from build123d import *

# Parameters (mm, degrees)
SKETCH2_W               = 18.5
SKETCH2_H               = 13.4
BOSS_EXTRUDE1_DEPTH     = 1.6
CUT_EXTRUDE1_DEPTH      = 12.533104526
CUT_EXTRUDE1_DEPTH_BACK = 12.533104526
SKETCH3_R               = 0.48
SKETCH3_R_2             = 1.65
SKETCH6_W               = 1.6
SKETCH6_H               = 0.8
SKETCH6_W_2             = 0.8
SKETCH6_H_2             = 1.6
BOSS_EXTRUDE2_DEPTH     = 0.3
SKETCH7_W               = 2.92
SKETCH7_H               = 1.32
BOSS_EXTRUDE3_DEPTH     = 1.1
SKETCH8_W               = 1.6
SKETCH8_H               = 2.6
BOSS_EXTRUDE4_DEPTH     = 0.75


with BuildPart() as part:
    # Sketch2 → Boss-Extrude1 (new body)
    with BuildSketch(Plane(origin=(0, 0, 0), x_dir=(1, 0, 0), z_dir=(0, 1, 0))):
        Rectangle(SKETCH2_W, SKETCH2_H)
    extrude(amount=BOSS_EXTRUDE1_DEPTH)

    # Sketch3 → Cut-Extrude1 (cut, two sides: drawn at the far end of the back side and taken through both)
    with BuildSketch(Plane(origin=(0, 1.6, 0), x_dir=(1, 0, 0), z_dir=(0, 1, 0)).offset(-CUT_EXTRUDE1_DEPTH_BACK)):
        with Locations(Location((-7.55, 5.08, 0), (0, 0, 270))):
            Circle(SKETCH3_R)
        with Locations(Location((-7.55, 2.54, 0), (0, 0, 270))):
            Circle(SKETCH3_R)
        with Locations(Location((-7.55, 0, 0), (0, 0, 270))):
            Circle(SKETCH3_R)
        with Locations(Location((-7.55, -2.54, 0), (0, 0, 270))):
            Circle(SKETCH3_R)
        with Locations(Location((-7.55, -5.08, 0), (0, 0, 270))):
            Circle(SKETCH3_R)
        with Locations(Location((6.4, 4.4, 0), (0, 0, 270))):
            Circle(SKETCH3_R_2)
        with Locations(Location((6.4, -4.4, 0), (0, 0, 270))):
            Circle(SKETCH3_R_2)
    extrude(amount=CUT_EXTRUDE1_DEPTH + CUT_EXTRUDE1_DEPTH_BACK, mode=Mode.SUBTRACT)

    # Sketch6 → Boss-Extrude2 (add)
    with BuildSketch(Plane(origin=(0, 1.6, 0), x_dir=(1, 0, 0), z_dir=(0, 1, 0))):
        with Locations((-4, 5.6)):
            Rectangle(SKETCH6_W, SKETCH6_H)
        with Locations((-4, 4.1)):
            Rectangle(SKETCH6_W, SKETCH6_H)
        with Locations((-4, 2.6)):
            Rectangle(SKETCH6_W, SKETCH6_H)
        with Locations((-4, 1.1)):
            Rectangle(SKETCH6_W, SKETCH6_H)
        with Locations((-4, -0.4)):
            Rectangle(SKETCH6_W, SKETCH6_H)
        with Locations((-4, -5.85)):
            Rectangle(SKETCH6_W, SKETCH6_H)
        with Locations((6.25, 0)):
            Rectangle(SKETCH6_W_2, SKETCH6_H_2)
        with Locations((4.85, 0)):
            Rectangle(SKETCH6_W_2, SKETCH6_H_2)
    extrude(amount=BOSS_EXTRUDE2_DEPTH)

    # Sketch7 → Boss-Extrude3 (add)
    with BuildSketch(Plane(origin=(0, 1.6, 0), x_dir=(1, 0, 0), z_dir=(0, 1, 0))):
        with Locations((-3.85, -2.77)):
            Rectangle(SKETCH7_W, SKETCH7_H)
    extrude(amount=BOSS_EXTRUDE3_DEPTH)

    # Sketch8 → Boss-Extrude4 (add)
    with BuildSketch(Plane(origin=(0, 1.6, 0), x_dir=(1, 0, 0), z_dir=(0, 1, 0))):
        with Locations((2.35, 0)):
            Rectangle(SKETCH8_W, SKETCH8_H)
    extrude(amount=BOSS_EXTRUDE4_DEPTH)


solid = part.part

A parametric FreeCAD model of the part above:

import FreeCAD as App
import Part
import Sketcher

V = App.Vector
Q = App.Units.Quantity

doc = App.newDocument("Part")
body = doc.addObject("PartDesign::Body", "Body")

sketch1 = body.newObject("Sketcher::SketchObject", "Sketch")
sketch1.AttachmentSupport = (doc.getObject("XZ_Plane"), [""])
sketch1.MapMode = "FlatFace"
sketch1.addGeometry([
    Part.LineSegment(V(-9.25, -6.7, 0), V(-9.25, 6.7, 0)),
    Part.LineSegment(V(-9.25, 6.7, 0), V(9.25, 6.7, 0)),
    Part.LineSegment(V(9.25, 6.7, 0), V(9.25, -6.7, 0)),
    Part.LineSegment(V(9.25, -6.7, 0), V(-9.25, -6.7, 0)),
], False)
sketch1.addConstraint([
    Sketcher.Constraint("Coincident", 0, 2, 1, 1),
    Sketcher.Constraint("Coincident", 1, 2, 2, 1),
    Sketcher.Constraint("Coincident", 2, 2, 3, 1),
    Sketcher.Constraint("Coincident", 3, 2, 0, 1),
    Sketcher.Constraint("Vertical", 0),
    Sketcher.Constraint("Horizontal", 1),
    Sketcher.Constraint("Vertical", 2),
    Sketcher.Constraint("Horizontal", 3),
    Sketcher.Constraint("Symmetric", 0, 2, 2, 2, -1, 1),
    Sketcher.Constraint("DistanceX", 1, 1, 1, 2, Q("18.5 mm")),
    Sketcher.Constraint("DistanceY", 0, 1, 0, 2, Q("13.4 mm")),
])
pad1 = body.newObject("PartDesign::Pad", "Pad")
pad1.Profile = sketch1
pad1.Length = 1.6
pad1.Reversed = True

sketch2 = body.newObject("Sketcher::SketchObject", "Sketch001")
sketch2.AttachmentSupport = (doc.getObject("XZ_Plane"), [""])
sketch2.MapMode = "FlatFace"
sketch2.AttachmentOffset = App.Placement(V(0, 0, -1.6), App.Rotation())
sketch2.addGeometry([
    Part.Circle(V(-7.55, -5.08, 0), V(0, 0, 1), 0.48),
    Part.Circle(V(-7.55, -2.54, 0), V(0, 0, 1), 0.48),
    Part.Circle(V(-7.55, 0, 0), V(0, 0, 1), 0.48),
    Part.Circle(V(-7.55, 2.54, 0), V(0, 0, 1), 0.48),
    Part.Circle(V(-7.55, 5.08, 0), V(0, 0, 1), 0.48),
    Part.Circle(V(6.4, -4.4, 0), V(0, 0, 1), 1.65),
    Part.Circle(V(6.4, 4.4, 0), V(0, 0, 1), 1.65),
], False)
sketch2.addConstraint([
    Sketcher.Constraint("Equal", 0, 1),
    Sketcher.Constraint("Equal", 1, 2),
    Sketcher.Constraint("Equal", 2, 3),
    Sketcher.Constraint("Equal", 3, 4),
    Sketcher.Constraint("Equal", 5, 6),
    Sketcher.Constraint("Symmetric", 1, 3, 3, 3, -1),
    Sketcher.Constraint("Symmetric", 0, 3, 4, 3, -1),
    Sketcher.Constraint("Symmetric", 5, 3, 6, 3, -1),
    Sketcher.Constraint("PointOnObject", 2, 3, -1),
    Sketcher.Constraint("Vertical", 0, 3, 1, 3),
    Sketcher.Constraint("Vertical", 1, 3, 2, 3),
    Sketcher.Constraint("Diameter", 5, Q("3.3 mm")),
    Sketcher.Constraint("Diameter", 0, Q("0.96 mm")),
    Sketcher.Constraint("DistanceX", -1, 1, 5, 3, Q("6.4 mm")),
    Sketcher.Constraint("DistanceY", 5, 3, -1, 1, Q("4.4 mm")),
    Sketcher.Constraint("DistanceX", 0, 3, -1, 1, Q("7.55 mm")),
    Sketcher.Constraint("DistanceY", 0, 3, -1, 1, Q("5.08 mm")),
    Sketcher.Constraint("DistanceY", 1, 3, -1, 1, Q("2.54 mm")),
])
pocket1 = body.newObject("PartDesign::Pocket", "Pocket")
pocket1.Profile = sketch2
pocket1.Type = "ThroughAll"
pocket1.Midplane = True

sketch3 = body.newObject("Sketcher::SketchObject", "Sketch002")
sketch3.AttachmentSupport = (doc.getObject("XZ_Plane"), [""])
sketch3.MapMode = "FlatFace"
sketch3.AttachmentOffset = App.Placement(V(0, 0, -1.6), App.Rotation())
sketch3.addGeometry([
    Part.LineSegment(V(-4.8, -6, 0), V(-4.8, -5.2, 0)),
    Part.LineSegment(V(-4.8, -5.2, 0), V(-3.2, -5.2, 0)),
    Part.LineSegment(V(-3.2, -5.2, 0), V(-3.2, -6, 0)),
    Part.LineSegment(V(-3.2, -6, 0), V(-4.8, -6, 0)),
    Part.LineSegment(V(-4.8, -4.5, 0), V(-4.8, -3.7, 0)),
    Part.LineSegment(V(-4.8, -3.7, 0), V(-3.2, -3.7, 0)),
    Part.LineSegment(V(-3.2, -3.7, 0), V(-3.2, -4.5, 0)),
    Part.LineSegment(V(-3.2, -4.5, 0), V(-4.8, -4.5, 0)),
    Part.LineSegment(V(-4.8, -3, 0), V(-4.8, -2.2, 0)),
    Part.LineSegment(V(-4.8, -2.2, 0), V(-3.2, -2.2, 0)),
    Part.LineSegment(V(-3.2, -2.2, 0), V(-3.2, -3, 0)),
    Part.LineSegment(V(-3.2, -3, 0), V(-4.8, -3, 0)),
    Part.LineSegment(V(-4.8, -1.5, 0), V(-4.8, -0.7, 0)),
    Part.LineSegment(V(-4.8, -0.7, 0), V(-3.2, -0.7, 0)),
    Part.LineSegment(V(-3.2, -0.7, 0), V(-3.2, -1.5, 0)),
    Part.LineSegment(V(-3.2, -1.5, 0), V(-4.8, -1.5, 0)),
    Part.LineSegment(V(-4.8, 0, 0), V(-4.8, 0.8, 0)),
    Part.LineSegment(V(-4.8, 0.8, 0), V(-3.2, 0.8, 0)),
    Part.LineSegment(V(-3.2, 0.8, 0), V(-3.2, 0, 0)),
    Part.LineSegment(V(-3.2, 0, 0), V(-4.8, 0, 0)),
    Part.LineSegment(V(-4.8, 5.45, 0), V(-4.8, 6.25, 0)),
    Part.LineSegment(V(-4.8, 6.25, 0), V(-3.2, 6.25, 0)),
    Part.LineSegment(V(-3.2, 6.25, 0), V(-3.2, 5.45, 0)),
    Part.LineSegment(V(-3.2, 5.45, 0), V(-4.8, 5.45, 0)),
    Part.LineSegment(V(5.85, -0.8, 0), V(5.85, 0.8, 0)),
    Part.LineSegment(V(5.85, 0.8, 0), V(6.65, 0.8, 0)),
    Part.LineSegment(V(6.65, 0.8, 0), V(6.65, -0.8, 0)),
    Part.LineSegment(V(6.65, -0.8, 0), V(5.85, -0.8, 0)),
    Part.LineSegment(V(4.45, -0.8, 0), V(4.45, 0.8, 0)),
    Part.LineSegment(V(4.45, 0.8, 0), V(5.25, 0.8, 0)),
    Part.LineSegment(V(5.25, 0.8, 0), V(5.25, -0.8, 0)),
    Part.LineSegment(V(5.25, -0.8, 0), V(4.45, -0.8, 0)),
], False)
sketch3.addConstraint([
    Sketcher.Constraint("Coincident", 0, 2, 1, 1),
    Sketcher.Constraint("Coincident", 1, 2, 2, 1),
    Sketcher.Constraint("Coincident", 2, 2, 3, 1),
    Sketcher.Constraint("Coincident", 3, 2, 0, 1),
    Sketcher.Constraint("Coincident", 4, 2, 5, 1),
    Sketcher.Constraint("Coincident", 5, 2, 6, 1),
    Sketcher.Constraint("Coincident", 6, 2, 7, 1),
    Sketcher.Constraint("Coincident", 7, 2, 4, 1),
    Sketcher.Constraint("Coincident", 8, 2, 9, 1),
    Sketcher.Constraint("Coincident", 9, 2, 10, 1),
    Sketcher.Constraint("Coincident", 10, 2, 11, 1),
    Sketcher.Constraint("Coincident", 11, 2, 8, 1),
    Sketcher.Constraint("Coincident", 12, 2, 13, 1),
    Sketcher.Constraint("Coincident", 13, 2, 14, 1),
    Sketcher.Constraint("Coincident", 14, 2, 15, 1),
    Sketcher.Constraint("Coincident", 15, 2, 12, 1),
    Sketcher.Constraint("Coincident", 16, 2, 17, 1),
    Sketcher.Constraint("Coincident", 17, 2, 18, 1),
    Sketcher.Constraint("Coincident", 18, 2, 19, 1),
    Sketcher.Constraint("Coincident", 19, 2, 16, 1),
    Sketcher.Constraint("Coincident", 20, 2, 21, 1),
    Sketcher.Constraint("Coincident", 21, 2, 22, 1),
    Sketcher.Constraint("Coincident", 22, 2, 23, 1),
    Sketcher.Constraint("Coincident", 23, 2, 20, 1),
    Sketcher.Constraint("Coincident", 24, 2, 25, 1),
    Sketcher.Constraint("Coincident", 25, 2, 26, 1),
    Sketcher.Constraint("Coincident", 26, 2, 27, 1),
    Sketcher.Constraint("Coincident", 27, 2, 24, 1),
    Sketcher.Constraint("Coincident", 28, 2, 29, 1),
    Sketcher.Constraint("Coincident", 29, 2, 30, 1),
    Sketcher.Constraint("Coincident", 30, 2, 31, 1),
    Sketcher.Constraint("Coincident", 31, 2, 28, 1),
    Sketcher.Constraint("Vertical", 0),
    Sketcher.Constraint("Horizontal", 1),
    Sketcher.Constraint("Vertical", 2),
    Sketcher.Constraint("Horizontal", 3),
    Sketcher.Constraint("Vertical", 4),
    Sketcher.Constraint("Horizontal", 5),
    Sketcher.Constraint("Vertical", 6),
    Sketcher.Constraint("Horizontal", 7),
    Sketcher.Constraint("Vertical", 8),
    Sketcher.Constraint("Horizontal", 9),
    Sketcher.Constraint("Vertical", 10),
    Sketcher.Constraint("Horizontal", 11),
    Sketcher.Constraint("Vertical", 12),
    Sketcher.Constraint("Horizontal", 13),
    Sketcher.Constraint("Vertical", 14),
    Sketcher.Constraint("Horizontal", 15),
    Sketcher.Constraint("Vertical", 16),
    Sketcher.Constraint("Horizontal", 17),
    Sketcher.Constraint("Vertical", 18),
    Sketcher.Constraint("Horizontal", 19),
    Sketcher.Constraint("Vertical", 20),
    Sketcher.Constraint("Horizontal", 21),
    Sketcher.Constraint("Vertical", 22),
    Sketcher.Constraint("Horizontal", 23),
    Sketcher.Constraint("Vertical", 24),
    Sketcher.Constraint("Horizontal", 25),
    Sketcher.Constraint("Vertical", 26),
    Sketcher.Constraint("Horizontal", 27),
    Sketcher.Constraint("Vertical", 28),
    Sketcher.Constraint("Horizontal", 29),
    Sketcher.Constraint("Vertical", 30),
    Sketcher.Constraint("Horizontal", 31),
    Sketcher.Constraint("PointOnObject", 18, 2, -1),
    Sketcher.Constraint("Horizontal", 17, 2, 24, 2),
    Sketcher.Constraint("Horizontal", 25, 2, 28, 2),
    Sketcher.Constraint("Horizontal", 27, 2, 30, 2),
    Sketcher.Constraint("Vertical", 3, 2, 4, 2),
    Sketcher.Constraint("Vertical", 2, 2, 5, 2),
    Sketcher.Constraint("Vertical", 7, 2, 8, 2),
    Sketcher.Constraint("Vertical", 6, 2, 9, 2),
    Sketcher.Constraint("Vertical", 11, 2, 12, 2),
    Sketcher.Constraint("Vertical", 10, 2, 13, 2),
    Sketcher.Constraint("Vertical", 15, 2, 16, 2),
    Sketcher.Constraint("Vertical", 14, 2, 17, 2),
    Sketcher.Constraint("Vertical", 19, 2, 20, 2),
    Sketcher.Constraint("Vertical", 18, 2, 21, 2),
    Sketcher.Constraint("Equal", 27, 29),
    Sketcher.Constraint("Equal", 31, 0),
    Sketcher.Constraint("Equal", 2, 4),
    Sketcher.Constraint("Equal", 6, 8),
    Sketcher.Constraint("Equal", 10, 12),
    Sketcher.Constraint("Equal", 14, 16),
    Sketcher.Constraint("Equal", 18, 20),
    Sketcher.Constraint("Equal", 23, 24),
    Sketcher.Constraint("DistanceX", 1, 1, 1, 2, Q("1.6 mm")),
    Sketcher.Constraint("DistanceX", 25, 1, 25, 2, Q("0.8 mm")),
    Sketcher.Constraint("DistanceY", 2, 2, -1, 1, Q("6 mm")),
    Sketcher.Constraint("DistanceY", 10, 2, -1, 1, Q("3 mm")),
    Sketcher.Constraint("DistanceY", 4, 2, 12, 2, Q("3 mm")),
    Sketcher.Constraint("DistanceX", 0, 2, -1, 1, Q("4.8 mm")),
    Sketcher.Constraint("DistanceY", 4, 2, -1, 1, Q("3.7 mm")),
    Sketcher.Constraint("DistanceX", 28, 2, 24, 2, Q("1.4 mm")),
    Sketcher.Constraint("DistanceY", -1, 1, 20, 2, Q("6.25 mm")),
    Sketcher.Constraint("DistanceX", -1, 1, 24, 2, Q("5.85 mm")),
])
pad2 = body.newObject("PartDesign::Pad", "Pad001")
pad2.Profile = sketch3
pad2.Length = 0.3
pad2.Reversed = True

sketch4 = body.newObject("Sketcher::SketchObject", "Sketch003")
sketch4.AttachmentSupport = (doc.getObject("XZ_Plane"), [""])
sketch4.MapMode = "FlatFace"
sketch4.AttachmentOffset = App.Placement(V(0, 0, -1.6), App.Rotation())
sketch4.addGeometry([
    Part.LineSegment(V(-5.31, 2.11, 0), V(-5.31, 3.43, 0)),
    Part.LineSegment(V(-5.31, 3.43, 0), V(-2.39, 3.43, 0)),
    Part.LineSegment(V(-2.39, 3.43, 0), V(-2.39, 2.11, 0)),
    Part.LineSegment(V(-2.39, 2.11, 0), V(-5.31, 2.11, 0)),
], False)
sketch4.addConstraint([
    Sketcher.Constraint("Coincident", 0, 2, 1, 1),
    Sketcher.Constraint("Coincident", 1, 2, 2, 1),
    Sketcher.Constraint("Coincident", 2, 2, 3, 1),
    Sketcher.Constraint("Coincident", 3, 2, 0, 1),
    Sketcher.Constraint("Vertical", 0),
    Sketcher.Constraint("Horizontal", 1),
    Sketcher.Constraint("Vertical", 2),
    Sketcher.Constraint("Horizontal", 3),
    Sketcher.Constraint("DistanceX", 1, 1, 1, 2, Q("2.92 mm")),
    Sketcher.Constraint("DistanceY", 0, 1, 0, 2, Q("1.32 mm")),
    Sketcher.Constraint("DistanceX", 0, 2, -1, 1, Q("5.31 mm")),
    Sketcher.Constraint("DistanceY", -1, 1, 0, 2, Q("3.43 mm")),
])
pad3 = body.newObject("PartDesign::Pad", "Pad002")
pad3.Profile = sketch4
pad3.Length = 1.1
pad3.Reversed = True

sketch5 = body.newObject("Sketcher::SketchObject", "Sketch004")
sketch5.AttachmentSupport = (doc.getObject("XZ_Plane"), [""])
sketch5.MapMode = "FlatFace"
sketch5.AttachmentOffset = App.Placement(V(0, 0, -1.6), App.Rotation())
sketch5.addGeometry([
    Part.LineSegment(V(1.55, -1.3, 0), V(1.55, 1.3, 0)),
    Part.LineSegment(V(1.55, 1.3, 0), V(3.15, 1.3, 0)),
    Part.LineSegment(V(3.15, 1.3, 0), V(3.15, -1.3, 0)),
    Part.LineSegment(V(3.15, -1.3, 0), V(1.55, -1.3, 0)),
], False)
sketch5.addConstraint([
    Sketcher.Constraint("Coincident", 0, 2, 1, 1),
    Sketcher.Constraint("Coincident", 1, 2, 2, 1),
    Sketcher.Constraint("Coincident", 2, 2, 3, 1),
    Sketcher.Constraint("Coincident", 3, 2, 0, 1),
    Sketcher.Constraint("Vertical", 0),
    Sketcher.Constraint("Horizontal", 1),
    Sketcher.Constraint("Vertical", 2),
    Sketcher.Constraint("Horizontal", 3),
    Sketcher.Constraint("DistanceX", 1, 1, 1, 2, Q("1.6 mm")),
    Sketcher.Constraint("DistanceY", 0, 1, 0, 2, Q("2.6 mm")),
    Sketcher.Constraint("DistanceY", -1, 1, 0, 2, Q("1.3 mm")),
    Sketcher.Constraint("DistanceX", -1, 1, 0, 2, Q("1.55 mm")),
])
pad4 = body.newObject("PartDesign::Pad", "Pad003")
pad4.Profile = sketch5
pad4.Length = 0.75
pad4.Reversed = True

doc.recompute()
